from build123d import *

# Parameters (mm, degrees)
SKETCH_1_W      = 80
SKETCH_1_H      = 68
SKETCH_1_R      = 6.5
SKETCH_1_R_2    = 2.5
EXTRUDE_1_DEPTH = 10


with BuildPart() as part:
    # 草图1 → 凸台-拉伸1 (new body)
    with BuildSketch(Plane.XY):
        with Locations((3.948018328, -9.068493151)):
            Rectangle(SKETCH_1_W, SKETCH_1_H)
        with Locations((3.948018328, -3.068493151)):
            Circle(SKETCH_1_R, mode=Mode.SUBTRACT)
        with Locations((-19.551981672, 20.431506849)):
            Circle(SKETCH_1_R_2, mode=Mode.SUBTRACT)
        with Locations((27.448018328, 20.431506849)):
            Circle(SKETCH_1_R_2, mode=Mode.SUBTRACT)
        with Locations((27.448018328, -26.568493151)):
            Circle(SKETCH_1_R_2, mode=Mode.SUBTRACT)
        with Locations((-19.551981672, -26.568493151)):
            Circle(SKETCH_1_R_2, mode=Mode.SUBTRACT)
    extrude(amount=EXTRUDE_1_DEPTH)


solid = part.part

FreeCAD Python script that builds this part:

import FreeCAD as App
import Part
import Sketcher
from FreeCAD import Vector
Q = App.Units.Quantity

doc = App.newDocument("Part")
body = doc.addObject("PartDesign::Body", "Body")

# Sketch on XY plane
sketch1 = body.newObject("Sketcher::SketchObject", "Sketch")
sketch1.AttachmentSupport = (doc.getObject("XY_Plane"), [""])
sketch1.MapMode = "FlatFace"
sketch1.addGeometry(Part.LineSegment(Vector(-36.1, 24.9, 0), Vector(-36.1, -43.1, 0)), False)
sketch1.addGeometry(Part.LineSegment(Vector(-36.1, -43.1, 0), Vector(43.9, -43.1, 0)), False)
sketch1.addGeometry(Part.LineSegment(Vector(43.9, -43.1, 0), Vector(43.9, 24.9, 0)), False)
sketch1.addGeometry(Part.LineSegment(Vector(43.9, 24.9, 0), Vector(-36.1, 24.9, 0)), False)
sketch1.addGeometry(Part.Circle(Vector(-19.6, -26.6, 0), Vector(0, 0, 1), 2.5), False)
sketch1.addGeometry(Part.Circle(Vector(27.4, -26.6, 0), Vector(0, 0, 1), 2.5), False)
sketch1.addGeometry(Part.Circle(Vector(-19.6, 20.4, 0), Vector(0, 0, 1), 2.5), False)
sketch1.addGeometry(Part.Circle(Vector(3.9, -3.1, 0), Vector(0, 0, 1), 6.5), False)
sketch1.addGeometry(Part.Circle(Vector(27.4, 20.4, 0), Vector(0, 0, 1), 2.5), False)
sketch1.addConstraint(Sketcher.Constraint("Coincident", 0, 2, 1, 1))
sketch1.addConstraint(Sketcher.Constraint("Coincident", 1, 2, 2, 1))
sketch1.addConstraint(Sketcher.Constraint("Coincident", 2, 2, 3, 1))
sketch1.addConstraint(Sketcher.Constraint("Coincident", 3, 2, 0, 1))
sketch1.addConstraint(Sketcher.Constraint("Vertical", 0))
sketch1.addConstraint(Sketcher.Constraint("Horizontal", 1))
sketch1.addConstraint(Sketcher.Constraint("Vertical", 2))
sketch1.addConstraint(Sketcher.Constraint("Horizontal", 3))
sketch1.addConstraint(Sketcher.Constraint("Equal", 4, 5))
sketch1.addConstraint(Sketcher.Constraint("Equal", 5, 6))
sketch1.addConstraint(Sketcher.Constraint("Equal", 6, 8))
sketch1.addConstraint(Sketcher.Constraint("Horizontal", 4, 3, 5, 3))
sketch1.addConstraint(Sketcher.Constraint("Horizontal", 6, 3, 8, 3))
sketch1.addConstraint(Sketcher.Constraint("Vertical", 4, 3, 6, 3))
sketch1.addConstraint(Sketcher.Constraint("Vertical", 5, 3, 8, 3))
sketch1.addConstraint(Sketcher.Constraint("Diameter", 4, Q("5 mm")))
sketch1.addConstraint(Sketcher.Constraint("Diameter", 7, Q("13 mm")))
sketch1.addConstraint(Sketcher.Constraint("DistanceX", 1, 1, 1, 2, Q("80 mm")))
sketch1.addConstraint(Sketcher.Constraint("DistanceY", 0, 2, 0, 1, Q("68 mm")))
sketch1.addConstraint(Sketcher.Constraint("DistanceX", 4, 3, 5, 3, Q("47 mm")))
sketch1.addConstraint(Sketcher.Constraint("DistanceY", 4, 3, 6, 3, Q("47 mm")))
sketch1.addConstraint(Sketcher.Constraint("DistanceX", 0, 2, 7, 3, Q("40 mm")))
sketch1.addConstraint(Sketcher.Constraint("DistanceY", 0, 2, 7, 3, Q("40 mm")))
sketch1.addConstraint(Sketcher.Constraint("DistanceX", 4, 3, 7, 3, Q("23.5 mm")))
sketch1.addConstraint(Sketcher.Constraint("DistanceY", 4, 3, 7, 3, Q("23.5 mm")))
sketch1.addConstraint(Sketcher.Constraint("DistanceX", 4, 3, -1, 1, Q("19.551982 mm")))
sketch1.addConstraint(Sketcher.Constraint("DistanceY", 4, 3, -1, 1, Q("26.568493 mm")))
pad1 = body.newObject("PartDesign::Pad", "Pad")
pad1.Profile = sketch1
pad1.Length = 10

doc.recompute()
